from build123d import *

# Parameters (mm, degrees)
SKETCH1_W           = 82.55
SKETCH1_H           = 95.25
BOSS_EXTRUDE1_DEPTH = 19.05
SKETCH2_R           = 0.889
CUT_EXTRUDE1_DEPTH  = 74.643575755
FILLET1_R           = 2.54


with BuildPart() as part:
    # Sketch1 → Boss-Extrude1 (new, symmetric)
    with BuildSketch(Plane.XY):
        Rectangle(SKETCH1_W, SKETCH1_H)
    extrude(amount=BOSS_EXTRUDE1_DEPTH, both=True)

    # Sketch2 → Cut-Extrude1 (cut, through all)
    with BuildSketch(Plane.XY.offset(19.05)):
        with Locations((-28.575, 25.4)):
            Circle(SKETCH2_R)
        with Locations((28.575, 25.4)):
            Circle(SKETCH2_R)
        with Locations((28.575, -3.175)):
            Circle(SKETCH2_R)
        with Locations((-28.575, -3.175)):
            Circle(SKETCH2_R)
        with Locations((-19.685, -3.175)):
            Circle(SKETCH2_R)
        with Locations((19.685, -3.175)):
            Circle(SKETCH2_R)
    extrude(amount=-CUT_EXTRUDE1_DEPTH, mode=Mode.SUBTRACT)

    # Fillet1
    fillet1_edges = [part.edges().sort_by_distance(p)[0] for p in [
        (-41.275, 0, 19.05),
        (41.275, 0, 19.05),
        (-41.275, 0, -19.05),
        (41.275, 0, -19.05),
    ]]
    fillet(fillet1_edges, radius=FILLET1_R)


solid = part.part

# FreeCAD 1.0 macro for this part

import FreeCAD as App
import Part
import Sketcher

V = App.Vector
Q = App.Units.Quantity


def edges_at(feature, points):
    """Names of the edges that pass closest to the given points."""
    edges = feature.Shape.Edges
    near = lambda p: min(range(len(edges)), key=lambda i: edges[i].distToShape(Part.Vertex(*p))[0])
    return sorted({f"Edge{near(p) + 1}" for p in points})


def add_polygon(sketch, points):
    """Adds a closed chain of lines whose ends are joined by coincident constraints."""
    first, n = sketch.GeometryCount, len(points)
    for a, b in zip(points, points[1:] + points[:1]):
        sketch.addGeometry(Part.LineSegment(App.Vector(*a, 0), App.Vector(*b, 0)), False)
    for i in range(n):
        sketch.addConstraint(Sketcher.Constraint("Coincident", first + i, 2, first + (i + 1) % n, 1))

doc = App.newDocument("Part")
params = doc.addObject("Spreadsheet::Sheet", "Params")
for row, (alias, value) in enumerate([
    ("sketch1_width", "3.25 in"),
    ("sketch1_height", "3.75 in"),
    ("pad1_length", "1.5 in"),
    ("sketch2_diameter", "0.07 in"),
    ("fillet_radius", "0.1 in"),
], start=1):
    params.set(f"A{row}", alias)
    params.set(f"B{row}", "=" + value)
    params.setAlias(f"B{row}", alias)

body = doc.addObject("PartDesign::Body", "Body")

sketch1 = body.newObject("Sketcher::SketchObject", "Sketch")
sketch1.AttachmentSupport = (doc.getObject("XY_Plane"), [""])
sketch1.MapMode = "FlatFace"
add_polygon(sketch1, [(-41, 48), (-41, -48), (41, -48), (41, 48)])
sketch1.addConstraint(Sketcher.Constraint("Vertical", 0))
sketch1.addConstraint(Sketcher.Constraint("Horizontal", 1))
sketch1.addConstraint(Sketcher.Constraint("Vertical", 2))
sketch1.addConstraint(Sketcher.Constraint("Horizontal", 3))
sketch1.addConstraint(Sketcher.Constraint("Symmetric", 0, 2, 2, 2, -1, 1))
sketch1.addConstraint(Sketcher.Constraint("DistanceX", 1, 1, 1, 2, Q("3.25 in")))
sketch1.addConstraint(Sketcher.Constraint("DistanceY", 0, 2, 0, 1, Q("3.75 in")))
sketch1.setExpression("Constraints[9]", "Params.sketch1_width")
sketch1.setExpression("Constraints[10]", "Params.sketch1_height")
pad1 = body.newObject("PartDesign::Pad", "Pad")
pad1.Profile = sketch1
pad1.setExpression("Length", "Params.pad1_length")
pad1.Midplane = True

sketch2 = body.newObject("Sketcher::SketchObject", "Sketch001")
sketch2.AttachmentSupport = (doc.getObject("XY_Plane"), [""])
sketch2.MapMode = "FlatFace"
sketch2.AttachmentOffset = App.Placement(V(0, 0, 0.75 * 25.4), App.Rotation())
sketch2.addGeometry(Part.Circle(V(-28.6, 25.4, 0), V(0, 0, 1), 0.9), False)
sketch2.addGeometry(Part.Circle(V(28.6, 25.4, 0), V(0, 0, 1), 0.9), False)
sketch2.addGeometry(Part.Circle(V(28.6, -3.2, 0), V(0, 0, 1), 0.9), False)
sketch2.addGeometry(Part.Circle(V(-28.6, -3.2, 0), V(0, 0, 1), 0.9), False)
sketch2.addGeometry(Part.Circle(V(-19.7, -3.2, 0), V(0, 0, 1), 0.9), False)
sketch2.addGeometry(Part.Circle(V(19.7, -3.2, 0), V(0, 0, 1), 0.9), False)
sketch2.addConstraint(Sketcher.Constraint("Equal", 0, 1))
sketch2.addConstraint(Sketcher.Constraint("Equal", 1, 2))
sketch2.addConstraint(Sketcher.Constraint("Equal", 2, 3))
sketch2.addConstraint(Sketcher.Constraint("Equal", 3, 4))
sketch2.addConstraint(Sketcher.Constraint("Equal", 4, 5))
sketch2.addConstraint(Sketcher.Constraint("Symmetric", 0, 3, 1, 3, -2))
sketch2.addConstraint(Sketcher.Constraint("Symmetric", 2, 3, 3, 3, -2))
sketch2.addConstraint(Sketcher.Constraint("Symmetric", 4, 3, 5, 3, -2))
sketch2.addConstraint(Sketcher.Constraint("Horizontal", 3, 3, 4, 3))
sketch2.addConstraint(Sketcher.Constraint("Vertical", 1, 3, 2, 3))
sketch2.addConstraint(Sketcher.Constraint("Diameter", 0, Q("0.07 in")))
sketch2.addConstraint(Sketcher.Constraint("DistanceY", -1, 1, 0, 3, Q("1 in")))
sketch2.addConstraint(Sketcher.Constraint("DistanceX", 4, 3, 2, 3, Q("1.9 in")))
sketch2.addConstraint(Sketcher.Constraint("DistanceX", 0, 3, 1, 3, Q("2.25 in")))
sketch2.addConstraint(Sketcher.Constraint("DistanceY", 2, 3, -1, 1, Q("0.125 in")))
sketch2.setExpression("Constraints[10]", "Params.sketch2_diameter")
pocket1 = body.newObject("PartDesign::Pocket", "Pocket")
pocket1.Profile = sketch2
pocket1.Type = "ThroughAll"
doc.recompute()

fillet = body.newObject("PartDesign::Fillet", "Fillet")
fillet.Base = (pocket1, edges_at(pocket1, [
    (-41.275, 0, 19.05),
    (41.275, 0, 19.05),
    (-41.275, 0, -19.05),
    (41.275, 0, -19.05),
]))
fillet.setExpression("Radius", "Params.fillet_radius")

doc.recompute()
